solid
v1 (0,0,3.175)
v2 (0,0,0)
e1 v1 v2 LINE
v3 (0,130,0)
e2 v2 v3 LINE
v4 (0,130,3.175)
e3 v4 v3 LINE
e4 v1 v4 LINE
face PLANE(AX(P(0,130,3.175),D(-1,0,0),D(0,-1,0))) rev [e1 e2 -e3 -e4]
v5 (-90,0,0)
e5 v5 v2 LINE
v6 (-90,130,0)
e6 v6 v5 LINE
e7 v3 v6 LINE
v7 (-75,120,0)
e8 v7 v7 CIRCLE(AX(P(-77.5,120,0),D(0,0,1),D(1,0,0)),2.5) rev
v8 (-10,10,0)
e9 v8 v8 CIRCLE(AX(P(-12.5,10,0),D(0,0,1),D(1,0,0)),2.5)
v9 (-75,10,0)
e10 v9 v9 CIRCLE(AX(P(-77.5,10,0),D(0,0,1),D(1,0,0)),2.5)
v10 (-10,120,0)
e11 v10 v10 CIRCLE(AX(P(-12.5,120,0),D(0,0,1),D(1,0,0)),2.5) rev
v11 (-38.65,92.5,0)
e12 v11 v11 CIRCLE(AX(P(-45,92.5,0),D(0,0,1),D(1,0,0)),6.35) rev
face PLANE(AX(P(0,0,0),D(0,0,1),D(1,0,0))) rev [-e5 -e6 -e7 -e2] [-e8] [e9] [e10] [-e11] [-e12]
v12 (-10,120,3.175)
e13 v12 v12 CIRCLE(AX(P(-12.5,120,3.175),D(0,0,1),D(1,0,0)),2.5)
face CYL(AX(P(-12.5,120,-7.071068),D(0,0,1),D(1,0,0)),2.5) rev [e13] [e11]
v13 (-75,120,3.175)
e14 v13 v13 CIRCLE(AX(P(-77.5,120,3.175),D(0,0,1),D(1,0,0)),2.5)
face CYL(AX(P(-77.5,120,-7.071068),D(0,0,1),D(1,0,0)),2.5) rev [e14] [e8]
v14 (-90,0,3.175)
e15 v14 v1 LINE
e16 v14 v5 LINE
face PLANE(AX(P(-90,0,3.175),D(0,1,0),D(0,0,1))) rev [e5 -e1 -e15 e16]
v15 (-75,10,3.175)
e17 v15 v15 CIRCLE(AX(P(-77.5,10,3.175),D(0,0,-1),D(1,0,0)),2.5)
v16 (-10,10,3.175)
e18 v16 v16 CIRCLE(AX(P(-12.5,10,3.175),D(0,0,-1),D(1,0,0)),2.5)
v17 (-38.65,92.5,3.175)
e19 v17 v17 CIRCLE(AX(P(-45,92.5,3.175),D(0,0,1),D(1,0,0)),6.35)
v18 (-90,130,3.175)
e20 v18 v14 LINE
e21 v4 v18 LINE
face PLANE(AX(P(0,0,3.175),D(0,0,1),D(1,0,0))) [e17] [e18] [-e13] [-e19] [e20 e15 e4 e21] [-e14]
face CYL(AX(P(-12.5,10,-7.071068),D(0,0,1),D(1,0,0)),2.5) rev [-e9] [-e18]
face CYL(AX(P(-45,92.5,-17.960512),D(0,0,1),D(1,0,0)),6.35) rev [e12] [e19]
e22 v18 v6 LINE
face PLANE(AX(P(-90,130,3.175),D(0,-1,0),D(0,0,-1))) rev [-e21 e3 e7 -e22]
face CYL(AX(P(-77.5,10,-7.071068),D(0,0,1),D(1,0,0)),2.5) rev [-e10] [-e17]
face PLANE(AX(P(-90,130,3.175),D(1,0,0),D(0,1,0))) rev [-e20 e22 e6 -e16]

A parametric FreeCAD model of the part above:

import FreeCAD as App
import Part
import Sketcher

V = App.Vector
Q = App.Units.Quantity


def add_polygon(sketch, points):
    """Adds a closed chain of lines whose ends are joined by coincident constraints."""
    first, n = sketch.GeometryCount, len(points)
    for a, b in zip(points, points[1:] + points[:1]):
        sketch.addGeometry(Part.LineSegment(App.Vector(*a, 0), App.Vector(*b, 0)), False)
    for i in range(n):
        sketch.addConstraint(Sketcher.Constraint("Coincident", first + i, 2, first + (i + 1) % n, 1))

doc = App.newDocument("Part")
params = doc.addObject("Spreadsheet::Sheet", "Params")
for row, (alias, value) in enumerate([
    ("sketch1_width", "90 mm"),
    ("sketch1_height", "130 mm"),
    ("pad1_length", "3.175 mm"),
    ("sketch2_diameter", "5 mm"),
    ("pocket1_length", "3.175 mm"),
    ("sketch3_diameter", "12.7 mm"),
    ("pocket2_length", "3.175 mm"),
], start=1):
    params.set(f"A{row}", alias)
    params.set(f"B{row}", "=" + value)
    params.setAlias(f"B{row}", alias)

body = doc.addObject("PartDesign::Body", "Body")

# Sketch on XY plane
sketch1 = body.newObject("Sketcher::SketchObject", "Sketch")
sketch1.AttachmentSupport = (doc.getObject("XY_Plane"), [""])
sketch1.MapMode = "FlatFace"
add_polygon(sketch1, [(-90, 130), (-90, 0), (0, 0), (0, 130)])  # lines 0-3
sketch1.addConstraint(Sketcher.Constraint("Vertical", 0))
sketch1.addConstraint(Sketcher.Constraint("Horizontal", 1))
sketch1.addConstraint(Sketcher.Constraint("Vertical", 2))
sketch1.addConstraint(Sketcher.Constraint("Horizontal", 3))
sketch1.addConstraint(Sketcher.Constraint("Coincident", 1, 2, -1, 1))
sketch1.addConstraint(Sketcher.Constraint("DistanceX", 1, 1, 1, 2, Q("90 mm")))
sketch1.addConstraint(Sketcher.Constraint("DistanceY", 0, 2, 0, 1, Q("130 mm")))
sketch1.setExpression("Constraints[9]", "Params.sketch1_width")
sketch1.setExpression("Constraints[10]", "Params.sketch1_height")
pad1 = body.newObject("PartDesign::Pad", "Pad")
pad1.Profile = sketch1
pad1.setExpression("Length", "Params.pad1_length")

# Sketch on XY plane
sketch2 = body.newObject("Sketcher::SketchObject", "Sketch001")
sketch2.AttachmentSupport = (doc.getObject("XY_Plane"), [""])
sketch2.MapMode = "FlatFace"
sketch2.AttachmentOffset = App.Placement(V(0, 0, 3.175), App.Rotation())
sketch2.addGeometry(Part.Circle(V(-77.5, 120, 0), V(0, 0, 1), 2.5), False)
sketch2.addGeometry(Part.Circle(V(-12.5, 120, 0), V(0, 0, 1), 2.5), False)
sketch2.addConstraint(Sketcher.Constraint("Equal", 0, 1))
sketch2.addConstraint(Sketcher.Constraint("Horizontal", 0, 3, 1, 3))
sketch2.addConstraint(Sketcher.Constraint("Diameter", 0, Q("5 mm")))
sketch2.addConstraint(Sketcher.Constraint("DistanceY", -1, 1, 0, 3, Q("120 mm")))
sketch2.addConstraint(Sketcher.Constraint("DistanceX", 0, 3, 1, 3, Q("65 mm")))
sketch2.addConstraint(Sketcher.Constraint("DistanceX", 0, 3, -1, 1, Q("77.5 mm")))
sketch2.setExpression("Constraints[2]", "Params.sketch2_diameter")
pocket1 = body.newObject("PartDesign::Pocket", "Pocket")
pocket1.Profile = sketch2
pocket1.setExpression("Length", "Params.pocket1_length")
doc.recompute()

datumplane = body.newObject("PartDesign::Plane", "DatumPlane")
datumplane.AttachmentSupport = (doc.getObject("XZ_Plane"), [""])
datumplane.MapMode = "FlatFace"
datumplane.AttachmentOffset = App.Placement(V(0, 0, -65), App.Rotation())
mirrored = body.newObject("PartDesign::Mirrored", "Mirrored")
mirrored.Originals = [pocket1]
mirrored.MirrorPlane = (datumplane, [""])
body.Tip = mirrored

# Sketch on XY plane
sketch3 = body.newObject("Sketcher::SketchObject", "Sketch002")
sketch3.AttachmentSupport = (doc.getObject("XY_Plane"), [""])
sketch3.MapMode = "FlatFace"
sketch3.AttachmentOffset = App.Placement(V(0, 0, 3.175), App.Rotation())
sketch3.addGeometry(Part.Circle(V(-45, 92, 0), V(0, 0, 1), 6), False)
sketch3.addConstraint(Sketcher.Constraint("Diameter", 0, Q("12.7 mm")))
sketch3.addConstraint(Sketcher.Constraint("DistanceX", 0, 3, -1, 1, Q("45 mm")))
sketch3.addConstraint(Sketcher.Constraint("DistanceY", -1, 1, 0, 3, Q("92.5 mm")))
sketch3.setExpression("Constraints[0]", "Params.sketch3_diameter")
pocket2 = body.newObject("PartDesign::Pocket", "Pocket001")
pocket2.Profile = sketch3
pocket2.setExpression("Length", "Params.pocket2_length")

doc.recompute()
